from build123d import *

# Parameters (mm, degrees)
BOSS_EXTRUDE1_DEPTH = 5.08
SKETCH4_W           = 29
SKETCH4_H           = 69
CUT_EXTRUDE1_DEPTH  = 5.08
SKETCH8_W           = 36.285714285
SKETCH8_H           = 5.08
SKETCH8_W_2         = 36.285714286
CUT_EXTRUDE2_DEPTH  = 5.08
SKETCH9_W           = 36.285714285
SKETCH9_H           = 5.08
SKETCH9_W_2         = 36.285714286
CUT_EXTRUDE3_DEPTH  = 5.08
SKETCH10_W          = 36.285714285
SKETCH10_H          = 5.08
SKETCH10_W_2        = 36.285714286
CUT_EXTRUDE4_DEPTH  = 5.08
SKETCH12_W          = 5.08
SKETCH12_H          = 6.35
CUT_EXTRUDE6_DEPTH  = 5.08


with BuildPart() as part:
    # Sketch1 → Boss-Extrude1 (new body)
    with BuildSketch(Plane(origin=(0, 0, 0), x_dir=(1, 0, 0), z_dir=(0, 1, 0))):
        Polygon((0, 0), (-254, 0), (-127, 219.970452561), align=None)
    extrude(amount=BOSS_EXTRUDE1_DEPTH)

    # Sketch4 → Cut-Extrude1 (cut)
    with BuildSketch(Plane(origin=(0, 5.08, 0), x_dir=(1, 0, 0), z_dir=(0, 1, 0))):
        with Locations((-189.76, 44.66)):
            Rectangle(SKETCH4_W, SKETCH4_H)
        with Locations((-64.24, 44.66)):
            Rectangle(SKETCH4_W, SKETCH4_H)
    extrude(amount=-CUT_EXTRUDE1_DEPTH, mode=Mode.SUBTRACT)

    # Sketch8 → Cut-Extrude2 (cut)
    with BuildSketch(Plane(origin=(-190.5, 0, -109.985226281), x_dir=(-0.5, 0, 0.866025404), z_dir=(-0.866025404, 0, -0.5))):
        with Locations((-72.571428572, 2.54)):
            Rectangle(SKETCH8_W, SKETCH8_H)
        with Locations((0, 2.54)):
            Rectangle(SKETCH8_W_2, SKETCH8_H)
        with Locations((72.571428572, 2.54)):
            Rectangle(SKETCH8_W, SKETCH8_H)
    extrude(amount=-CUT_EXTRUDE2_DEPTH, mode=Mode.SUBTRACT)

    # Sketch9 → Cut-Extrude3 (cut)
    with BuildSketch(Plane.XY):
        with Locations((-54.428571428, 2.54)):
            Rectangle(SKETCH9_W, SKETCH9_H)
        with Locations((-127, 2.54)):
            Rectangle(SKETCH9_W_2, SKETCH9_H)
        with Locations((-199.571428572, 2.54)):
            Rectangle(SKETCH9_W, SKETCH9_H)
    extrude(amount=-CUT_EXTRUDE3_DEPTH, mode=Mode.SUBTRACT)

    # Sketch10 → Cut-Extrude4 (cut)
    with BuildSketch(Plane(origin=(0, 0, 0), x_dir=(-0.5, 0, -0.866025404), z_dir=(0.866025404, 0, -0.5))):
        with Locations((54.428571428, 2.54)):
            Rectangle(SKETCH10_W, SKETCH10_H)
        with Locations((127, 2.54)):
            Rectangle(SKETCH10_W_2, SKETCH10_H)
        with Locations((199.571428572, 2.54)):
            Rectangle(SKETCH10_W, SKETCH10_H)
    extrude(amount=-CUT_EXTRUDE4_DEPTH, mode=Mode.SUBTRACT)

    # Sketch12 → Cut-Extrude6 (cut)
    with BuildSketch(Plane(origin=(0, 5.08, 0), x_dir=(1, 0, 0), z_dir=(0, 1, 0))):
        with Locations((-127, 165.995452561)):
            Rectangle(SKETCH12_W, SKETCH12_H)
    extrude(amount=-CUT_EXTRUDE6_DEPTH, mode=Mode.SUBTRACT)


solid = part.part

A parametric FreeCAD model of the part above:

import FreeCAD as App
import Part
import Sketcher
from FreeCAD import Vector
Q = App.Units.Quantity

doc = App.newDocument("Part")
body = doc.addObject("PartDesign::Body", "Body")

sketch1 = body.newObject("Sketcher::SketchObject", "Sketch")
sketch1.AttachmentSupport = (doc.getObject("XZ_Plane"), [""])
sketch1.MapMode = "FlatFace"
sketch1.addGeometry([
    Part.LineSegment(Vector(-254, 0, 0), Vector(0, 0, 0)),
    Part.LineSegment(Vector(0, 0, 0), Vector(-127, -220, 0)),
    Part.LineSegment(Vector(-127, -220, 0), Vector(-254, 0, 0)),
], False)
sketch1.addConstraint([
    Sketcher.Constraint("Coincident", 0, 2, 1, 1),
    Sketcher.Constraint("Coincident", 1, 2, 2, 1),
    Sketcher.Constraint("Coincident", 2, 2, 0, 1),
    Sketcher.Constraint("Horizontal", 0),
    Sketcher.Constraint("Coincident", 0, 2, -1, 1),
    Sketcher.Constraint("Equal", 1, 2),
    Sketcher.Constraint("DistanceX", 0, 1, 0, 2, Q("10 in")),
    Sketcher.Constraint("Distance", 1, Q("10 in")),
])
pad1 = body.newObject("PartDesign::Pad", "Pad")
pad1.Profile = sketch1
pad1.Length = Q("0.2 in")
pad1.Reversed = True

sketch2 = body.newObject("Sketcher::SketchObject", "Sketch001")
sketch2.AttachmentSupport = (doc.getObject("XZ_Plane"), [""])
sketch2.MapMode = "FlatFace"
sketch2.AttachmentOffset = App.Placement(Vector(0, 0, -0.2 * 25.4), App.Rotation())
sketch2.addGeometry([
    Part.LineSegment(Vector(-204, -79, 0), Vector(-204, -10, 0)),
    Part.LineSegment(Vector(-204, -10, 0), Vector(-175, -10, 0)),
    Part.LineSegment(Vector(-175, -10, 0), Vector(-175, -79, 0)),
    Part.LineSegment(Vector(-175, -79, 0), Vector(-204, -79, 0)),
    Part.LineSegment(Vector(-79, -79, 0), Vector(-79, -10, 0)),
    Part.LineSegment(Vector(-79, -10, 0), Vector(-50, -10, 0)),
    Part.LineSegment(Vector(-50, -10, 0), Vector(-50, -79, 0)),
    Part.LineSegment(Vector(-50, -79, 0), Vector(-79, -79, 0)),
], False)
sketch2.addConstraint([
    Sketcher.Constraint("Coincident", 0, 2, 1, 1),
    Sketcher.Constraint("Coincident", 1, 2, 2, 1),
    Sketcher.Constraint("Coincident", 2, 2, 3, 1),
    Sketcher.Constraint("Coincident", 3, 2, 0, 1),
    Sketcher.Constraint("Coincident", 4, 2, 5, 1),
    Sketcher.Constraint("Coincident", 5, 2, 6, 1),
    Sketcher.Constraint("Coincident", 6, 2, 7, 1),
    Sketcher.Constraint("Coincident", 7, 2, 4, 1),
    Sketcher.Constraint("Vertical", 0),
    Sketcher.Constraint("Horizontal", 1),
    Sketcher.Constraint("Vertical", 2),
    Sketcher.Constraint("Horizontal", 3),
    Sketcher.Constraint("Vertical", 4),
    Sketcher.Constraint("Horizontal", 5),
    Sketcher.Constraint("Vertical", 6),
    Sketcher.Constraint("Horizontal", 7),
    Sketcher.Constraint("Horizontal", 1, 2, 4, 2),
    Sketcher.Constraint("Horizontal", 3, 2, 6, 2),
    Sketcher.Constraint("Equal", 3, 5),
    Sketcher.Constraint("DistanceY", 0, 2, -1, 1, Q("0.4 in")),
    Sketcher.Constraint("DistanceX", 1, 2, -1, 1, Q("6.9 in")),
    Sketcher.Constraint("DistanceX", 4, 2, -1, 1, Q("3.1 in")),
    Sketcher.Constraint("DistanceX", 1, 1, 1, 2, 29.0),
    Sketcher.Constraint("DistanceY", 0, 1, 0, 2, 69.0),
])
pocket1 = body.newObject("PartDesign::Pocket", "Pocket")
pocket1.Profile = sketch2
pocket1.Length = Q("0.2 in")
pocket1.Reversed = True

sketch3 = body.newObject("Sketcher::SketchObject", "Sketch002")
sketch3.Placement = App.Placement(Vector(-190.5, 0, -109.985226), App.Rotation(Vector(-0.5, 0, 0.866025404), Vector(0, 1, 0), Vector(-0.866025404, 0, -0.5), "ZXY"))
sketch3.addGeometry([
    Part.LineSegment(Vector(-91, 5, 0), Vector(-91, 0, 0)),
    Part.LineSegment(Vector(-91, 0, 0), Vector(-54, 0, 0)),
    Part.LineSegment(Vector(-54, 0, 0), Vector(-54, 5, 0)),
    Part.LineSegment(Vector(-54, 5, 0), Vector(-91, 5, 0)),
    Part.LineSegment(Vector(-18, 5, 0), Vector(-18, 0, 0)),
    Part.LineSegment(Vector(-18, 0, 0), Vector(18, 0, 0)),
    Part.LineSegment(Vector(18, 0, 0), Vector(18, 5, 0)),
    Part.LineSegment(Vector(18, 5, 0), Vector(-18, 5, 0)),
    Part.LineSegment(Vector(54, 5, 0), Vector(54, 0, 0)),
    Part.LineSegment(Vector(54, 0, 0), Vector(91, 0, 0)),
    Part.LineSegment(Vector(91, 0, 0), Vector(91, 5, 0)),
    Part.LineSegment(Vector(91, 5, 0), Vector(54, 5, 0)),
], False)
sketch3.addConstraint([
    Sketcher.Constraint("Coincident", 0, 2, 1, 1),
    Sketcher.Constraint("Coincident", 1, 2, 2, 1),
    Sketcher.Constraint("Coincident", 2, 2, 3, 1),
    Sketcher.Constraint("Coincident", 3, 2, 0, 1),
    Sketcher.Constraint("Coincident", 4, 2, 5, 1),
    Sketcher.Constraint("Coincident", 5, 2, 6, 1),
    Sketcher.Constraint("Coincident", 6, 2, 7, 1),
    Sketcher.Constraint("Coincident", 7, 2, 4, 1),
    Sketcher.Constraint("Coincident", 8, 2, 9, 1),
    Sketcher.Constraint("Coincident", 9, 2, 10, 1),
    Sketcher.Constraint("Coincident", 10, 2, 11, 1),
    Sketcher.Constraint("Coincident", 11, 2, 8, 1),
    Sketcher.Constraint("Vertical", 0),
    Sketcher.Constraint("Horizontal", 1),
    Sketcher.Constraint("Vertical", 2),
    Sketcher.Constraint("Horizontal", 3),
    Sketcher.Constraint("Vertical", 4),
    Sketcher.Constraint("Horizontal", 5),
    Sketcher.Constraint("Vertical", 6),
    Sketcher.Constraint("Horizontal", 7),
    Sketcher.Constraint("Vertical", 8),
    Sketcher.Constraint("Horizontal", 9),
    Sketcher.Constraint("Vertical", 10),
    Sketcher.Constraint("Horizontal", 11),
    Sketcher.Constraint("Symmetric", 4, 2, 5, 2, -1, 1),
    Sketcher.Constraint("Symmetric", 1, 2, 8, 2, -1, 1),
    Sketcher.Constraint("Symmetric", 0, 2, 9, 2, -2),
    Sketcher.Constraint("Horizontal", 3, 2, 6, 2),
    Sketcher.Constraint("Horizontal", 7, 2, 10, 2),
    Sketcher.Constraint("Equal", 3, 5),
    Sketcher.Constraint("DistanceY", 0, 2, 0, 1, Q("0.2 in")),
    Sketcher.Constraint("DistanceX", 1, 1, 1, 2, 36.285714),
    Sketcher.Constraint("DistanceX", 1, 2, -1, 1, 54.428571),
])
pocket2 = body.newObject("PartDesign::Pocket", "Pocket001")
pocket2.Profile = sketch3
pocket2.Length = Q("0.2 in")

sketch4 = body.newObject("Sketcher::SketchObject", "Sketch003")
sketch4.AttachmentSupport = (doc.getObject("XY_Plane"), [""])
sketch4.MapMode = "FlatFace"
sketch4.addGeometry([
    Part.LineSegment(Vector(-73, 5, 0), Vector(-73, 0, 0)),
    Part.LineSegment(Vector(-73, 0, 0), Vector(-36, 0, 0)),
    Part.LineSegment(Vector(-36, 0, 0), Vector(-36, 5, 0)),
    Part.LineSegment(Vector(-36, 5, 0), Vector(-73, 5, 0)),
    Part.LineSegment(Vector(-145, 5, 0), Vector(-145, 0, 0)),
    Part.LineSegment(Vector(-145, 0, 0), Vector(-109, 0, 0)),
    Part.LineSegment(Vector(-109, 0, 0), Vector(-109, 5, 0)),
    Part.LineSegment(Vector(-109, 5, 0), Vector(-145, 5, 0)),
    Part.LineSegment(Vector(-218, 5, 0), Vector(-218, 0, 0)),
    Part.LineSegment(Vector(-218, 0, 0), Vector(-181, 0, 0)),
    Part.LineSegment(Vector(-181, 0, 0), Vector(-181, 5, 0)),
    Part.LineSegment(Vector(-181, 5, 0), Vector(-218, 5, 0)),
], False)
sketch4.addConstraint([
    Sketcher.Constraint("Coincident", 0, 2, 1, 1),
    Sketcher.Constraint("Coincident", 1, 2, 2, 1),
    Sketcher.Constraint("Coincident", 2, 2, 3, 1),
    Sketcher.Constraint("Coincident", 3, 2, 0, 1),
    Sketcher.Constraint("Coincident", 4, 2, 5, 1),
    Sketcher.Constraint("Coincident", 5, 2, 6, 1),
    Sketcher.Constraint("Coincident", 6, 2, 7, 1),
    Sketcher.Constraint("Coincident", 7, 2, 4, 1),
    Sketcher.Constraint("Coincident", 8, 2, 9, 1),
    Sketcher.Constraint("Coincident", 9, 2, 10, 1),
    Sketcher.Constraint("Coincident", 10, 2, 11, 1),
    Sketcher.Constraint("Coincident", 11, 2, 8, 1),
    Sketcher.Constraint("Vertical", 0),
    Sketcher.Constraint("Horizontal", 1),
    Sketcher.Constraint("Vertical", 2),
    Sketcher.Constraint("Horizontal", 3),
    Sketcher.Constraint("Vertical", 4),
    Sketcher.Constraint("Horizontal", 5),
    Sketcher.Constraint("Vertical", 6),
    Sketcher.Constraint("Horizontal", 7),
    Sketcher.Constraint("Vertical", 8),
    Sketcher.Constraint("Horizontal", 9),
    Sketcher.Constraint("Vertical", 10),
    Sketcher.Constraint("Horizontal", 11),
    Sketcher.Constraint("PointOnObject", 0, 2, -1),
    Sketcher.Constraint("PointOnObject", 4, 2, -1),
    Sketcher.Constraint("PointOnObject", 8, 2, -1),
    Sketcher.Constraint("Horizontal", 3, 2, 6, 2),
    Sketcher.Constraint("Horizontal", 7, 2, 10, 2),
    Sketcher.Constraint("Equal", 3, 5),
    Sketcher.Constraint("Equal", 7, 9),
    Sketcher.Constraint("DistanceY", 0, 2, 0, 1, Q("0.2 in")),
    Sketcher.Constraint("DistanceX", 1, 1, 1, 2, 36.285714),
    Sketcher.Constraint("DistanceX", 0, 2, -1, 1, 72.571429),
    Sketcher.Constraint("DistanceX", 9, 2, -1, 1, 181.428571),
    Sketcher.Constraint("DistanceX", 4, 2, 0, 2, 72.571429),
])
pocket3 = body.newObject("PartDesign::Pocket", "Pocket002")
pocket3.Profile = sketch4
pocket3.Length = Q("0.2 in")

sketch5 = body.newObject("Sketcher::SketchObject", "Sketch004")
sketch5.Placement = App.Placement(Vector(0, 0, 0), App.Rotation(Vector(-0.5, 0, -0.866025404), Vector(0, 1, 0), Vector(0.866025404, 0, -0.5), "ZXY"))
sketch5.addGeometry([
    Part.LineSegment(Vector(36, 5, 0), Vector(36, 0, 0)),
    Part.LineSegment(Vector(36, 0, 0), Vector(73, 0, 0)),
    Part.LineSegment(Vector(73, 0, 0), Vector(73, 5, 0)),
    Part.LineSegment(Vector(73, 5, 0), Vector(36, 5, 0)),
    Part.LineSegment(Vector(109, 5, 0), Vector(109, 0, 0)),
    Part.LineSegment(Vector(109, 0, 0), Vector(145, 0, 0)),
    Part.LineSegment(Vector(145, 0, 0), Vector(145, 5, 0)),
    Part.LineSegment(Vector(145, 5, 0), Vector(109, 5, 0)),
    Part.LineSegment(Vector(181, 5, 0), Vector(181, 0, 0)),
    Part.LineSegment(Vector(181, 0, 0), Vector(218, 0, 0)),
    Part.LineSegment(Vector(218, 0, 0), Vector(218, 5, 0)),
    Part.LineSegment(Vector(218, 5, 0), Vector(181, 5, 0)),
], False)
sketch5.addConstraint([
    Sketcher.Constraint("Coincident", 0, 2, 1, 1),
    Sketcher.Constraint("Coincident", 1, 2, 2, 1),
    Sketcher.Constraint("Coincident", 2, 2, 3, 1),
    Sketcher.Constraint("Coincident", 3, 2, 0, 1),
    Sketcher.Constraint("Coincident", 4, 2, 5, 1),
    Sketcher.Constraint("Coincident", 5, 2, 6, 1),
    Sketcher.Constraint("Coincident", 6, 2, 7, 1),
    Sketcher.Constraint("Coincident", 7, 2, 4, 1),
    Sketcher.Constraint("Coincident", 8, 2, 9, 1),
    Sketcher.Constraint("Coincident", 9, 2, 10, 1),
    Sketcher.Constraint("Coincident", 10, 2, 11, 1),
    Sketcher.Constraint("Coincident", 11, 2, 8, 1),
    Sketcher.Constraint("Vertical", 0),
    Sketcher.Constraint("Horizontal", 1),
    Sketcher.Constraint("Vertical", 2),
    Sketcher.Constraint("Horizontal", 3),
    Sketcher.Constraint("Vertical", 4),
    Sketcher.Constraint("Horizontal", 5),
    Sketcher.Constraint("Vertical", 6),
    Sketcher.Constraint("Horizontal", 7),
    Sketcher.Constraint("Vertical", 8),
    Sketcher.Constraint("Horizontal", 9),
    Sketcher.Constraint("Vertical", 10),
    Sketcher.Constraint("Horizontal", 11),
    Sketcher.Constraint("PointOnObject", 0, 2, -1),
    Sketcher.Constraint("PointOnObject", 4, 2, -1),
    Sketcher.Constraint("PointOnObject", 8, 2, -1),
    Sketcher.Constraint("Horizontal", 3, 2, 6, 2),
    Sketcher.Constraint("Horizontal", 7, 2, 10, 2),
    Sketcher.Constraint("Equal", 3, 5),
    Sketcher.Constraint("Equal", 7, 9),
    Sketcher.Constraint("DistanceY", 0, 2, 0, 1, Q("0.2 in")),
    Sketcher.Constraint("DistanceX", 1, 1, 1, 2, 36.285714),
    Sketcher.Constraint("DistanceX", -1, 1, 1, 2, 72.571429),
    Sketcher.Constraint("DistanceX", -1, 1, 8, 2, 181.428571),
    Sketcher.Constraint("DistanceX", 0, 2, 4, 2, 72.571429),
])
pocket4 = body.newObject("PartDesign::Pocket", "Pocket003")
pocket4.Profile = sketch5
pocket4.Length = Q("0.2 in")

sketch6 = body.newObject("Sketcher::SketchObject", "Sketch005")
sketch6.AttachmentSupport = (doc.getObject("XZ_Plane"), [""])
sketch6.MapMode = "FlatFace"
sketch6.AttachmentOffset = App.Placement(Vector(0, 0, -0.2 * 25.4), App.Rotation())
sketch6.addGeometry([
    Part.LineSegment(Vector(-130, -169, 0), Vector(-130, -163, 0)),
    Part.LineSegment(Vector(-130, -163, 0), Vector(-124, -163, 0)),
    Part.LineSegment(Vector(-124, -163, 0), Vector(-124, -169, 0)),
    Part.LineSegment(Vector(-124, -169, 0), Vector(-130, -169, 0)),
], False)
sketch6.addConstraint([
    Sketcher.Constraint("Coincident", 0, 2, 1, 1),
    Sketcher.Constraint("Coincident", 1, 2, 2, 1),
    Sketcher.Constraint("Coincident", 2, 2, 3, 1),
    Sketcher.Constraint("Coincident", 3, 2, 0, 1),
    Sketcher.Constraint("Vertical", 0),
    Sketcher.Constraint("Horizontal", 1),
    Sketcher.Constraint("Vertical", 2),
    Sketcher.Constraint("Horizontal", 3),
    Sketcher.Constraint("DistanceX", 1, 1, 1, 2, Q("0.2 in")),
    Sketcher.Constraint("DistanceY", 0, 1, 0, 2, Q("0.25 in")),
    Sketcher.Constraint("DistanceX", 0, 2, -1, 1, Q("5.1 in")),
    Sketcher.Constraint("DistanceY", 0, 2, -1, 1, 162.820453),
])
pocket5 = body.newObject("PartDesign::Pocket", "Pocket004")
pocket5.Profile = sketch6
pocket5.Length = Q("0.2 in")
pocket5.Reversed = True

doc.recompute()
